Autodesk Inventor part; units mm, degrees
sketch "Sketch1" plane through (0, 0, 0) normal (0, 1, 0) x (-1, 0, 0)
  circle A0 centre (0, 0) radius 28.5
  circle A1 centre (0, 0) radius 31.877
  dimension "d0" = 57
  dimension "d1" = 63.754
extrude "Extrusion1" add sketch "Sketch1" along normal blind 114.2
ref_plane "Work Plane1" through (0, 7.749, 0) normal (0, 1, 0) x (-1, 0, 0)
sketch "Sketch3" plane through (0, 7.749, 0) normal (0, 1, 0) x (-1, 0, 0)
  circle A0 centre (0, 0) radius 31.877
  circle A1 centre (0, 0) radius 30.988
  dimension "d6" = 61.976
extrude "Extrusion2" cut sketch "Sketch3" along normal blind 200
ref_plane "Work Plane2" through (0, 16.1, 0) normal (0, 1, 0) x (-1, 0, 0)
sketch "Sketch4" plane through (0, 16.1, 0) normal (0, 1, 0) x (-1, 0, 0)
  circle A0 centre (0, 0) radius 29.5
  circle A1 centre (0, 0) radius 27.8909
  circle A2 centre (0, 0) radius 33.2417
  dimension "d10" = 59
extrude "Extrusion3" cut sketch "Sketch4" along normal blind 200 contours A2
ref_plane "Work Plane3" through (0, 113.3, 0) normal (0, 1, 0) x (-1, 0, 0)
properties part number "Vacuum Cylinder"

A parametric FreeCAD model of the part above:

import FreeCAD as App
import Part
import Sketcher

V = App.Vector

doc = App.newDocument("Part")
params = doc.addObject("Spreadsheet::Sheet", "Params")
for row, (alias, value) in enumerate([
    ("sketch1_diameter", "57 mm"),
    ("pad1_length", "114.2 mm"),
    ("pocket1_length", "200 mm"),
    ("sketch3_diameter", "59 mm"),
    ("pocket2_length", "200 mm"),
], start=1):
    params.set(f"A{row}", alias)
    params.set(f"B{row}", "=" + value)
    params.setAlias(f"B{row}", alias)

body = doc.addObject("PartDesign::Body", "Body")

# Sketch on XZ plane
sketch1 = doc.addObject("Sketcher::SketchObject", "Sketch")
body.addObject(sketch1)
sketch1.AttachmentSupport = (doc.XZ_Plane, [""])
sketch1.MapMode = "FlatFace"
sketch1.addGeometry(Part.Circle(V(0, 0, 0), V(0, 0, 1), 31.877), False)
sketch1.addGeometry(Part.Circle(V(0, 0, 0), V(0, 0, 1), 28.5), False)
sketch1.addConstraint(Sketcher.Constraint("Coincident", 0, 3, -1, 1))
sketch1.addConstraint(Sketcher.Constraint("Coincident", 1, 3, -1, 1))
sketch1.addConstraint(Sketcher.Constraint("Diameter", 1, 57.0))
sketch1.addConstraint(Sketcher.Constraint("Diameter", 0, 63.754))
sketch1.setExpression("Constraints[2]", "Params.sketch1_diameter")
pad1 = doc.addObject("PartDesign::Pad", "Pad")
body.addObject(pad1)
pad1.Profile = sketch1
pad1.setExpression("Length", "Params.pad1_length")
pad1.Reversed = True

# Sketch on XZ plane
sketch2 = doc.addObject("Sketcher::SketchObject", "Sketch001")
body.addObject(sketch2)
sketch2.AttachmentSupport = (doc.XZ_Plane, [""])
sketch2.MapMode = "FlatFace"
sketch2.AttachmentOffset = App.Placement(V(0, 0, -7.749), App.Rotation())
sketch2.addGeometry(Part.Circle(V(0, 0, 0), V(0, 0, 1), 31.877), False)
sketch2.addGeometry(Part.Circle(V(0, 0, 0), V(0, 0, 1), 30.988), False)
sketch2.addConstraint(Sketcher.Constraint("Coincident", 0, 3, -1, 1))
sketch2.addConstraint(Sketcher.Constraint("Coincident", 1, 3, -1, 1))
sketch2.addConstraint(Sketcher.Constraint("Diameter", 1, 61.976))
sketch2.addConstraint(Sketcher.Constraint("Diameter", 0, 63.754))
pocket1 = doc.addObject("PartDesign::Pocket", "Pocket")
body.addObject(pocket1)
pocket1.Profile = sketch2
pocket1.setExpression("Length", "Params.pocket1_length")

# Sketch on XZ plane
sketch3 = doc.addObject("Sketcher::SketchObject", "Sketch002")
body.addObject(sketch3)
sketch3.AttachmentSupport = (doc.XZ_Plane, [""])
sketch3.MapMode = "FlatFace"
sketch3.AttachmentOffset = App.Placement(V(0, 0, -16.1), App.Rotation())
sketch3.addGeometry(Part.Circle(V(0, 0, 0), V(0, 0, 1), 33.2417), False)
sketch3.addGeometry(Part.Circle(V(0, 0, 0), V(0, 0, 1), 29.5), False)
sketch3.addConstraint(Sketcher.Constraint("Coincident", 0, 3, -1, 1))
sketch3.addConstraint(Sketcher.Constraint("Coincident", 1, 3, -1, 1))
sketch3.addConstraint(Sketcher.Constraint("Diameter", 1, 59.0))
sketch3.addConstraint(Sketcher.Constraint("Diameter", 0, 66.4834))
sketch3.setExpression("Constraints[2]", "Params.sketch3_diameter")
pocket2 = doc.addObject("PartDesign::Pocket", "Pocket001")
body.addObject(pocket2)
pocket2.Profile = sketch3
pocket2.setExpression("Length", "Params.pocket2_length")

doc.recompute()
